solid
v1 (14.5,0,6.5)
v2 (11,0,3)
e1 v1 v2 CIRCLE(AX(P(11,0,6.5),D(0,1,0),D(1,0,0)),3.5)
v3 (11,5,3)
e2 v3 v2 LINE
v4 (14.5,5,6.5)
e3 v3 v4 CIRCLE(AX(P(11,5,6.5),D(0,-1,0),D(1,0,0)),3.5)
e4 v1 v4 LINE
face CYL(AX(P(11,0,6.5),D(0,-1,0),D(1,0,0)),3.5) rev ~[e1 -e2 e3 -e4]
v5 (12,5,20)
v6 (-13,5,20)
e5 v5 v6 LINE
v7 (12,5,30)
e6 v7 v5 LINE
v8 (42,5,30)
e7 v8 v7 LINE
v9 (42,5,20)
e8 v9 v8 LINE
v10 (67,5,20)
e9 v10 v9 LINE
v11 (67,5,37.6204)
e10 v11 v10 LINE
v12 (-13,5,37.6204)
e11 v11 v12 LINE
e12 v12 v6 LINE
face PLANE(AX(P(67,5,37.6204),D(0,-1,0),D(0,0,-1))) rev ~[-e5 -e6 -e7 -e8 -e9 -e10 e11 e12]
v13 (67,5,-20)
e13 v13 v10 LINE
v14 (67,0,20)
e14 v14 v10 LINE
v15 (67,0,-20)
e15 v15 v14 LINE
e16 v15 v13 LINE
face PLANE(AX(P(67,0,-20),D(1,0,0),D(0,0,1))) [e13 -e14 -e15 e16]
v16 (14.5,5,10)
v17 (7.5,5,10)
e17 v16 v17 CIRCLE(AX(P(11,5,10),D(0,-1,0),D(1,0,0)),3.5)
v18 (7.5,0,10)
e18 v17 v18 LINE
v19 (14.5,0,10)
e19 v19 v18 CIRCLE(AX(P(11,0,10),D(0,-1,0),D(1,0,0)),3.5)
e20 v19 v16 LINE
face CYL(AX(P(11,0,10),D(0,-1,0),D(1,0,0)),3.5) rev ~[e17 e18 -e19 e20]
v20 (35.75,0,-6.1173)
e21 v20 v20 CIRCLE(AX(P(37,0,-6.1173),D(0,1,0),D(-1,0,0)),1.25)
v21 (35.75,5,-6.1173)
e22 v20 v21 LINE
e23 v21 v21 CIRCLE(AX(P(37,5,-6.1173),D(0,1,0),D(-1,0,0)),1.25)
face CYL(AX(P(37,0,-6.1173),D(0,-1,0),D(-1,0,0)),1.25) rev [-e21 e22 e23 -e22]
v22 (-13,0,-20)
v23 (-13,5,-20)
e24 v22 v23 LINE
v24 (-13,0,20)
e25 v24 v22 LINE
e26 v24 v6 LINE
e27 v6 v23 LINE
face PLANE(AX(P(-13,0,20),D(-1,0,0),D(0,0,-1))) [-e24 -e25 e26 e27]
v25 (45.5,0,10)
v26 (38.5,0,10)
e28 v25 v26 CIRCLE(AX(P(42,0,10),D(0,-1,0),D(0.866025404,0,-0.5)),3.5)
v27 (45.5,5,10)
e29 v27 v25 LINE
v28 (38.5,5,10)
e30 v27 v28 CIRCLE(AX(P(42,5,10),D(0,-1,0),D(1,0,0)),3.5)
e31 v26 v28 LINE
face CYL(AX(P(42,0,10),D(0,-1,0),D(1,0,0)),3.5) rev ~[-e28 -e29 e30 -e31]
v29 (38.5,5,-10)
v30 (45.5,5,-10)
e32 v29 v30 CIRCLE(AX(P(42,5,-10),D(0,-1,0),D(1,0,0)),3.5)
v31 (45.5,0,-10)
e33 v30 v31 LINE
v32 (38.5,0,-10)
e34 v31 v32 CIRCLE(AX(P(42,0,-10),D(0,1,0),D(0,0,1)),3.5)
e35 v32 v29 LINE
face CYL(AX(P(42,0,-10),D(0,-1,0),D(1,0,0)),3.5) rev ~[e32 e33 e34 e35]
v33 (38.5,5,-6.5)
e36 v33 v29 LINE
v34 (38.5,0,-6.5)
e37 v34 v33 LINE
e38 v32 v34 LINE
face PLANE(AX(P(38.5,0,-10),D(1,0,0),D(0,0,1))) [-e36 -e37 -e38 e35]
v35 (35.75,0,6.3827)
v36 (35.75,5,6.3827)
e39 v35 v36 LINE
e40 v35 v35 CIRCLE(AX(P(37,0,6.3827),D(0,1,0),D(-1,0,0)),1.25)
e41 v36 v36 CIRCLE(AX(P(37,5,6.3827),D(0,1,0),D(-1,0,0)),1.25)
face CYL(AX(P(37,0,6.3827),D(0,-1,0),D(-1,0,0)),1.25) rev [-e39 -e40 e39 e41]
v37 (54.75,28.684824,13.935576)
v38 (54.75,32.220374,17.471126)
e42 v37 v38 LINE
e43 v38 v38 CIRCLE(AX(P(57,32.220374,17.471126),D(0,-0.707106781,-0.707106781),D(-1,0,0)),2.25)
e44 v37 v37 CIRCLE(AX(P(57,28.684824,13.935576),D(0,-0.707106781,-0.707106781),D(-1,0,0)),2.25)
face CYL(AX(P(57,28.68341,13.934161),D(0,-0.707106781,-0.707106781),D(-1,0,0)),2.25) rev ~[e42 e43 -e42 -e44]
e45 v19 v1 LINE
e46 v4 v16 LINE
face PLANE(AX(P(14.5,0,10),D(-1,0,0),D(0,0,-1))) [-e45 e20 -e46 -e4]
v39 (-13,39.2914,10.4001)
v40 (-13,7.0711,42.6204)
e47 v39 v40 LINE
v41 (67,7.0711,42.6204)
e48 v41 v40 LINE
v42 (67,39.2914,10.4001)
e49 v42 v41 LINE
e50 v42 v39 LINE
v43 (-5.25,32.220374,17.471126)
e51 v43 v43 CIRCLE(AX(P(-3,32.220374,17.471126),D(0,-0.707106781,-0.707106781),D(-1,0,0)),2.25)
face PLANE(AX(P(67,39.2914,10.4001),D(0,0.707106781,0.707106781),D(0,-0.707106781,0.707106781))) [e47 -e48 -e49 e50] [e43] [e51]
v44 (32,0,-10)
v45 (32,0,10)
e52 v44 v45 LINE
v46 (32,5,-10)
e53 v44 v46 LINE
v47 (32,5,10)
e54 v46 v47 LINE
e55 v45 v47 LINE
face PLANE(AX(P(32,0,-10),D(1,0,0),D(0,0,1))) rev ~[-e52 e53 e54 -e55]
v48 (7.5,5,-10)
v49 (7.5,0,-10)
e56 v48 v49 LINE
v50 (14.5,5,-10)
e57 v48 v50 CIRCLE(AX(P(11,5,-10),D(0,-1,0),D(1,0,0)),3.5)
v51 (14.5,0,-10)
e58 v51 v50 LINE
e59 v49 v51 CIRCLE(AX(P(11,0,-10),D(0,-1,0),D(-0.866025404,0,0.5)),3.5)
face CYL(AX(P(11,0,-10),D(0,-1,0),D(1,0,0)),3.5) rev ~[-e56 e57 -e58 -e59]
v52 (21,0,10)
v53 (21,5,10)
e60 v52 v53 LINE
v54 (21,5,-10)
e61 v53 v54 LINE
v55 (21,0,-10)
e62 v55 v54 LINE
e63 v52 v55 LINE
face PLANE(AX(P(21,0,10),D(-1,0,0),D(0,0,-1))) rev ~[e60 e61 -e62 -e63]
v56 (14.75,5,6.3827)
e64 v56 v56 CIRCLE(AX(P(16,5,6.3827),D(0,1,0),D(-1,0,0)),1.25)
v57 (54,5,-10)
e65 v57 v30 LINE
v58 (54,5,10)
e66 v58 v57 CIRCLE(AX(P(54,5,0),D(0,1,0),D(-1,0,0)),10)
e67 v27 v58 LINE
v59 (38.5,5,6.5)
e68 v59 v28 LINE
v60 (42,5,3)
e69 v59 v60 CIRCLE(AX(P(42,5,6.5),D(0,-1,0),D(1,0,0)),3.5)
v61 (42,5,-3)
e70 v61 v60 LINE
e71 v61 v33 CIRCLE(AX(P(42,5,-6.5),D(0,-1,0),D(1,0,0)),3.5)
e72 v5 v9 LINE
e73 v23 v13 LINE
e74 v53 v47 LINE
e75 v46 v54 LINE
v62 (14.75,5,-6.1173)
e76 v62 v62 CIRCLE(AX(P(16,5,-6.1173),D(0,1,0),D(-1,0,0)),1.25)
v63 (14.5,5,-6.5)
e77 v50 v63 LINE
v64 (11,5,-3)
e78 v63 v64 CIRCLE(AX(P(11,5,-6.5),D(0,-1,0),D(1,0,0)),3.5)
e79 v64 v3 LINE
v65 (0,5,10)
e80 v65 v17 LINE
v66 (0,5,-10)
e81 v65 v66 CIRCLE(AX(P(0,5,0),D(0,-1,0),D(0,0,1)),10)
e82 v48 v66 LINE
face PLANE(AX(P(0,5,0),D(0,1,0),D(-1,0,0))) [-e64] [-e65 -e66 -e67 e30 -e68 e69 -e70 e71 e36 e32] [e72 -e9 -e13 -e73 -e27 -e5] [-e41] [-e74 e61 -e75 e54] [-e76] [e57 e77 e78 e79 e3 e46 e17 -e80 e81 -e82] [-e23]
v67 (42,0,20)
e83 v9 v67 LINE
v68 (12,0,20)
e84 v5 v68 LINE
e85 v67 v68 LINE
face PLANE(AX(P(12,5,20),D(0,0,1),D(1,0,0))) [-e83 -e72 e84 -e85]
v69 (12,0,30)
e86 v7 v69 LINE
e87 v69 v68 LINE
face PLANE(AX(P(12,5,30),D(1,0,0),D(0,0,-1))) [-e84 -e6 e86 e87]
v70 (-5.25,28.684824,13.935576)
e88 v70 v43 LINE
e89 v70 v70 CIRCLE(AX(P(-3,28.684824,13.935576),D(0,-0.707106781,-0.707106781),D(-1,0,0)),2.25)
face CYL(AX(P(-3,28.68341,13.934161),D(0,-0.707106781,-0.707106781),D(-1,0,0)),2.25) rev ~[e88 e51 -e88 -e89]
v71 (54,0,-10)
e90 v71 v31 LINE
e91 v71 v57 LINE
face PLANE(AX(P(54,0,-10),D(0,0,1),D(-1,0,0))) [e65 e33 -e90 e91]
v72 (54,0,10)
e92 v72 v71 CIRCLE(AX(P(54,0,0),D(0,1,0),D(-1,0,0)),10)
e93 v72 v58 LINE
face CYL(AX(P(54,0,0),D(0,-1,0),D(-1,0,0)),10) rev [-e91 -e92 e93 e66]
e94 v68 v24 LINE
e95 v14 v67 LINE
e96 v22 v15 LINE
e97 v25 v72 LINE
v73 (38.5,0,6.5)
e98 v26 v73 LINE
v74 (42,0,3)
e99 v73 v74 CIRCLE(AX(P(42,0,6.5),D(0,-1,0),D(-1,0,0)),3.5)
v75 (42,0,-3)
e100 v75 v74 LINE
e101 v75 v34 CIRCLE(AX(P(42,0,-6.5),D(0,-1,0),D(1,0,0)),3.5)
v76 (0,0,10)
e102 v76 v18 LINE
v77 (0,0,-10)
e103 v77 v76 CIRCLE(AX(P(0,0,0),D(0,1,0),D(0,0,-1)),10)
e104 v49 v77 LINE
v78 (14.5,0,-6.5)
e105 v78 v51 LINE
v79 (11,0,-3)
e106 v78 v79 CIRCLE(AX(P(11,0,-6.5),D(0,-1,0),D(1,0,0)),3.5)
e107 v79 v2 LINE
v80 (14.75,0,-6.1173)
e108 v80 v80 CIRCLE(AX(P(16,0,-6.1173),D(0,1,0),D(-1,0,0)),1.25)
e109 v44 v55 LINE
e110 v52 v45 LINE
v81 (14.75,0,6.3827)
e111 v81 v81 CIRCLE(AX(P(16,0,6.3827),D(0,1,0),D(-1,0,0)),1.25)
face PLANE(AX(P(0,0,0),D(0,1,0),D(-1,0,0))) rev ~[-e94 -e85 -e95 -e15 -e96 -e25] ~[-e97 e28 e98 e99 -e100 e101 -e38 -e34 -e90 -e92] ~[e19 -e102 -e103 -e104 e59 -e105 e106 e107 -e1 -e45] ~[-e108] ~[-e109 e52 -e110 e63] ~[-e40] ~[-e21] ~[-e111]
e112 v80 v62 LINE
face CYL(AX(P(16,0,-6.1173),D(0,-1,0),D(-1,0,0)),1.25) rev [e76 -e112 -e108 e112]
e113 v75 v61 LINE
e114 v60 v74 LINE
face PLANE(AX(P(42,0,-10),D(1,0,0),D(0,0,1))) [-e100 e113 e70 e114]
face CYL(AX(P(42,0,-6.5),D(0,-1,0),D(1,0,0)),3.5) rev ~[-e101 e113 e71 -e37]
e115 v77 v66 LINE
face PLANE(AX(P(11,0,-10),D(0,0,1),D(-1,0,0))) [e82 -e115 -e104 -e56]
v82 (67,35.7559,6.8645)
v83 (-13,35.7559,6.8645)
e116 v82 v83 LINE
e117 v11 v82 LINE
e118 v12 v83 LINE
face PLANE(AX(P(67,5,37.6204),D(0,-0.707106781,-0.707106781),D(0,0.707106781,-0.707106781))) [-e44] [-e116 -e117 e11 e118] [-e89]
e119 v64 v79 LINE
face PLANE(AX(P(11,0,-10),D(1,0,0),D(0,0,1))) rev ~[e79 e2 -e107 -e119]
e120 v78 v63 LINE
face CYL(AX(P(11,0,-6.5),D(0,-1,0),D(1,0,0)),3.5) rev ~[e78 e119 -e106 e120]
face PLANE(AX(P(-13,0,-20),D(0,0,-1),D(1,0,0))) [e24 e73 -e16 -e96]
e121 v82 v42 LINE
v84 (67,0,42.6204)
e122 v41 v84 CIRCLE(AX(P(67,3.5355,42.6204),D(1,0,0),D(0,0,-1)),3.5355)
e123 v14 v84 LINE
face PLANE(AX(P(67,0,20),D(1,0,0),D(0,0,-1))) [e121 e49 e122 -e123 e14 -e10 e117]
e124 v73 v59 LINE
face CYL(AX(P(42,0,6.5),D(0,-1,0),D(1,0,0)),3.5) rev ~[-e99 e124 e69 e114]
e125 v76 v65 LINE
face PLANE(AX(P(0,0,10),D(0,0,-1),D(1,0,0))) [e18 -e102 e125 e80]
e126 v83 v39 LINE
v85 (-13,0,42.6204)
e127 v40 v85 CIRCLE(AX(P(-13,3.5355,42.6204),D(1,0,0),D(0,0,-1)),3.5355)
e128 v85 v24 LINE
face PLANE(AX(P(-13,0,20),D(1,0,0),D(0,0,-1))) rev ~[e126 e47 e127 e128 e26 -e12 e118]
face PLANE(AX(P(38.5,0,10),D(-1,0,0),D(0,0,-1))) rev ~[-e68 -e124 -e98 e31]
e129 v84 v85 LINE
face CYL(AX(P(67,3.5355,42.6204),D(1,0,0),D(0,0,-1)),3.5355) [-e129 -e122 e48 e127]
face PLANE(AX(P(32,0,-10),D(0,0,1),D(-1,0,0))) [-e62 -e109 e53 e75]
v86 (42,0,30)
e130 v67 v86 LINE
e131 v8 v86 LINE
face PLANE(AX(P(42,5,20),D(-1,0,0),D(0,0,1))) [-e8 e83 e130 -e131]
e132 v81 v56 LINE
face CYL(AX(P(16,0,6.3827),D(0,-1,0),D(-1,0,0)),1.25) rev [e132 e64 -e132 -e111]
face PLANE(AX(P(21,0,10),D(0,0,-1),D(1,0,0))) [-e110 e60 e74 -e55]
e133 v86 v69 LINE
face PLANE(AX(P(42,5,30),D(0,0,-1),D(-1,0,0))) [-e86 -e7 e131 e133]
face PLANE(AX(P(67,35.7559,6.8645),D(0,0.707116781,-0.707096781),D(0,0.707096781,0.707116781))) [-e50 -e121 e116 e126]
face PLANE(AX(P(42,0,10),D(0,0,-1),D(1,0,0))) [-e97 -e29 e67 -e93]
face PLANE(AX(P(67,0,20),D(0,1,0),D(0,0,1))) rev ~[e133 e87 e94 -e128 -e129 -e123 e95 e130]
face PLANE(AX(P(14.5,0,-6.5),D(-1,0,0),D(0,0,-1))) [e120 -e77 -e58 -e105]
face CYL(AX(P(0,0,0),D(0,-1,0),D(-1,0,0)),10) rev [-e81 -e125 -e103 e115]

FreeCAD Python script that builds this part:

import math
import FreeCAD as App
import Part
import Sketcher
from FreeCAD import Vector
Q = App.Units.Quantity

doc = App.newDocument("Part")
body = doc.addObject("PartDesign::Body", "Body")

# Sketch on XZ plane
sketch1 = body.newObject("Sketcher::SketchObject", "Sketch")
sketch1.AttachmentSupport = (doc.getObject("XZ_Plane"), [""])
sketch1.MapMode = "FlatFace"
sketch1.addGeometry([
    Part.LineSegment(Vector(67, -20, 0), Vector(-13, -20, 0)),  # 0
    Part.LineSegment(Vector(-13, -20, 0), Vector(-13, 20, 0)),  # 1
    Part.LineSegment(Vector(-13, 20, 0), Vector(67, 20, 0)),  # 2
    Part.LineSegment(Vector(67, 20, 0), Vector(67, -20, 0)),  # 3
    Part.LineSegment(Vector(11, -10, 0), Vector(11, 10, 0)),  # 4
    Part.LineSegment(Vector(11, 10, 0), Vector(0, 10, 0)),  # 5
    Part.ArcOfCircle(Part.Circle(Vector(0, 0, 0), Vector(0, 0, 1), 10), math.radians(90), math.radians(270)),  # 6
    Part.LineSegment(Vector(0, -10, 0), Vector(11, -10, 0)),  # 7
    Part.LineSegment(Vector(21, 10, 0), Vector(21, -10, 0)),  # 8
    Part.LineSegment(Vector(21, -10, 0), Vector(32, -10, 0)),  # 9
    Part.LineSegment(Vector(32, -10, 0), Vector(32, 10, 0)),  # 10
    Part.LineSegment(Vector(32, 10, 0), Vector(21, 10, 0)),  # 11
    Part.Circle(Vector(16, -6.1, 0), Vector(0, 0, 1), 1.2),  # 12
    Part.Circle(Vector(16, 6.4, 0), Vector(0, 0, 1), 1.2),  # 13
    Part.LineSegment(Vector(54, 10, 0), Vector(42, 10, 0)),  # 14
    Part.LineSegment(Vector(42, 10, 0), Vector(42, -10, 0)),  # 15
    Part.LineSegment(Vector(42, -10, 0), Vector(54, -10, 0)),  # 16
    Part.ArcOfCircle(Part.Circle(Vector(54, 0, 0), Vector(0, 0, 1), 10), math.radians(-90), math.radians(90)),  # 17
    Part.Circle(Vector(37, -6.1, 0), Vector(0, 0, 1), 1.2),  # 18
    Part.Circle(Vector(37, 6.4, 0), Vector(0, 0, 1), 1.2),  # 19
], False)
sketch1.addConstraint([
    Sketcher.Constraint("Coincident", 0, 2, 1, 1),
    Sketcher.Constraint("Coincident", 1, 2, 2, 1),
    Sketcher.Constraint("Coincident", 2, 2, 3, 1),
    Sketcher.Constraint("Coincident", 3, 2, 0, 1),
    Sketcher.Constraint("Coincident", 4, 2, 5, 1),
    Sketcher.Constraint("Tangent", 5, 2, 6, 1),
    Sketcher.Constraint("Tangent", 6, 2, 7, 1),
    Sketcher.Constraint("Coincident", 7, 2, 4, 1),
    Sketcher.Constraint("Coincident", 8, 2, 9, 1),
    Sketcher.Constraint("Coincident", 9, 2, 10, 1),
    Sketcher.Constraint("Coincident", 10, 2, 11, 1),
    Sketcher.Constraint("Coincident", 11, 2, 8, 1),
    Sketcher.Constraint("Coincident", 14, 2, 15, 1),
    Sketcher.Constraint("Coincident", 15, 2, 16, 1),
    Sketcher.Constraint("Tangent", 16, 2, 17, 1),
    Sketcher.Constraint("Tangent", 17, 2, 14, 1),
    Sketcher.Constraint("Horizontal", 0),
    Sketcher.Constraint("Vertical", 1),
    Sketcher.Constraint("Horizontal", 2),
    Sketcher.Constraint("Vertical", 3),
    Sketcher.Constraint("Vertical", 4),
    Sketcher.Constraint("Horizontal", 5),
    Sketcher.Constraint("Horizontal", 7),
    Sketcher.Constraint("Vertical", 8),
    Sketcher.Constraint("Horizontal", 9),
    Sketcher.Constraint("Vertical", 10),
    Sketcher.Constraint("Horizontal", 11),
    Sketcher.Constraint("Horizontal", 14),
    Sketcher.Constraint("Vertical", 15),
    Sketcher.Constraint("Horizontal", 16),
    Sketcher.Constraint("Coincident", 6, 3, -1, 1),
    Sketcher.Constraint("Equal", 12, 13),
    Sketcher.Constraint("Equal", 6, 17),
    Sketcher.Constraint("Equal", 13, 18),
    Sketcher.Constraint("Equal", 18, 19),
    Sketcher.Constraint("PointOnObject", 17, 3, -1),
    Sketcher.Constraint("Horizontal", 12, 3, 18, 3),
    Sketcher.Constraint("Horizontal", 13, 3, 19, 3),
    Sketcher.Constraint("Horizontal", 7, 2, 8, 2),
    Sketcher.Constraint("Horizontal", 5, 2, 10, 2),
    Sketcher.Constraint("Vertical", 12, 3, 13, 3),
    Sketcher.Constraint("Vertical", 18, 3, 19, 3),
    Sketcher.Constraint("Equal", 7, 9),
    Sketcher.Constraint("Radius", 6, 10.0),
    Sketcher.Constraint("Diameter", 12, 2.5),
    Sketcher.Constraint("DistanceX", 0, 2, 0, 1, 80.0),
    Sketcher.Constraint("DistanceX", 5, 2, 5, 1, 11.0),
    Sketcher.Constraint("DistanceY", 1, 1, 1, 2, 40.0),
    Sketcher.Constraint("DistanceX", -1, 1, 17, 3, 54.0),
    Sketcher.Constraint("DistanceX", 0, 2, -1, 1, 13.0),
    Sketcher.Constraint("DistanceY", 0, 2, -1, 1, 20.0),
    Sketcher.Constraint("DistanceX", -1, 1, 8, 2, 21.0),
    Sketcher.Constraint("DistanceX", 12, 3, 18, 3, 21.0),
    Sketcher.Constraint("DistanceX", 4, 2, 13, 3, 5.0),
    Sketcher.Constraint("DistanceX", 19, 3, 14, 2, 5.0),
    Sketcher.Constraint("DistanceY", 12, 3, 13, 3, 12.5),
    Sketcher.Constraint("DistanceY", 12, 3, -1, 1, 6.1173),
])
pad1 = body.newObject("PartDesign::Pad", "Pad")
pad1.Profile = sketch1
pad1.Length = 5
pad1.Reversed = True

# Sketch on YZ plane
sketch2 = body.newObject("Sketcher::SketchObject", "Sketch001")
sketch2.AttachmentSupport = (doc.getObject("YZ_Plane"), [""])
sketch2.MapMode = "FlatFace"
sketch2.AttachmentOffset = App.Placement(Vector(0, 0, 67), App.Rotation())
sketch2.addGeometry([
    Part.LineSegment(Vector(0, 20, 0), Vector(5, 20, 0)),  # 0
    Part.LineSegment(Vector(5, 20, 0), Vector(5, 37.6, 0)),  # 1
    Part.LineSegment(Vector(5, 37.6, 0), Vector(35.8, 6.9, 0)),  # 2
    Part.LineSegment(Vector(35.8, 6.9, 0), Vector(39.3, 10.4, 0)),  # 3
    Part.LineSegment(Vector(39.3, 10.4, 0), Vector(7.1, 42.6, 0)),  # 4
    Part.ArcOfCircle(Part.Circle(Vector(3.5, 42.6, 0), Vector(0, 0, 1), 3.5), math.radians(0), math.radians(180)),  # 5
    Part.LineSegment(Vector(0, 42.6, 0), Vector(0, 20, 0)),  # 6
], False)
sketch2.addConstraint([
    Sketcher.Constraint("Coincident", 0, 2, 1, 1),
    Sketcher.Constraint("Coincident", 1, 2, 2, 1),
    Sketcher.Constraint("Coincident", 2, 2, 3, 1),
    Sketcher.Constraint("Coincident", 3, 2, 4, 1),
    Sketcher.Constraint("Coincident", 4, 2, 5, 1),
    Sketcher.Constraint("Tangent", 5, 2, 6, 1),
    Sketcher.Constraint("Coincident", 6, 2, 0, 1),
    Sketcher.Constraint("Horizontal", 0),
    Sketcher.Constraint("Vertical", 1),
    Sketcher.Constraint("Vertical", 6),
    Sketcher.Constraint("PointOnObject", 5, 2, -2),
    Sketcher.Constraint("Perpendicular", 2, 3),
    Sketcher.Constraint("Perpendicular", 3, 4),
    Sketcher.Constraint("Horizontal", 5, 3, 4, 2),
    Sketcher.Constraint("DistanceX", 0, 1, 0, 2, 5.0),
    Sketcher.Constraint("Angle", 2, Q("-45 deg")),
    Sketcher.Constraint("Distance", 3, 5.0),
    Sketcher.Constraint("DistanceY", 1, 2, 5, 3, 5.0),
    Sketcher.Constraint("DistanceY", -1, 1, 0, 2, 20.0),
    Sketcher.Constraint("DistanceY", -1, 1, 3, 2, 10.4),
    Sketcher.Constraint("DistanceY", 1, 1, 1, 2, 17.6204),
])
pad2 = body.newObject("PartDesign::Pad", "Pad001")
pad2.Profile = sketch2
pad2.Length = 80
pad2.Reversed = True

# Sketch on XZ plane
sketch3 = body.newObject("Sketcher::SketchObject", "Sketch002")
sketch3.AttachmentSupport = (doc.getObject("XZ_Plane"), [""])
sketch3.MapMode = "FlatFace"
sketch3.AttachmentOffset = App.Placement(Vector(0, 0, -5), App.Rotation())
sketch3.addGeometry([
    Part.LineSegment(Vector(42, 20, 0), Vector(12, 20, 0)),
    Part.LineSegment(Vector(12, 20, 0), Vector(12, 30, 0)),
    Part.LineSegment(Vector(12, 30, 0), Vector(42, 30, 0)),
    Part.LineSegment(Vector(42, 30, 0), Vector(42, 20, 0)),
], False)
sketch3.addConstraint([
    Sketcher.Constraint("Coincident", 0, 2, 1, 1),
    Sketcher.Constraint("Coincident", 1, 2, 2, 1),
    Sketcher.Constraint("Coincident", 2, 2, 3, 1),
    Sketcher.Constraint("Coincident", 3, 2, 0, 1),
    Sketcher.Constraint("Horizontal", 0),
    Sketcher.Constraint("Vertical", 1),
    Sketcher.Constraint("Horizontal", 2),
    Sketcher.Constraint("Vertical", 3),
    Sketcher.Constraint("DistanceX", 0, 2, 0, 1, 30.0),
    Sketcher.Constraint("DistanceY", 1, 1, 1, 2, 10.0),
    Sketcher.Constraint("DistanceY", -1, 1, 1, 2, 30.0),
    Sketcher.Constraint("DistanceX", -1, 1, 0, 2, 12.0),
])
pocket1 = body.newObject("PartDesign::Pocket", "Pocket")
pocket1.Profile = sketch3
pocket1.Length = 80
pocket1.Reversed = True

# Sketch on an angled plane
sketch4 = body.newObject("Sketcher::SketchObject", "Sketch003")
sketch4.Placement = App.Placement(Vector(67, 5, 37.6204), App.Rotation(Vector(-1, 0, 0), Vector(0, 0.707106781, -0.707106781), Vector(0, -0.707106781, -0.707106781), "ZXY"))
sketch4.addGeometry([
    Part.Circle(Vector(70, 33.5, 0), Vector(0, 0, 1), 2.2),
    Part.Circle(Vector(10, 33.5, 0), Vector(0, 0, 1), 2.2),
], False)
sketch4.addConstraint([
    Sketcher.Constraint("Equal", 0, 1),
    Sketcher.Constraint("Horizontal", 0, 3, 1, 3),
    Sketcher.Constraint("Diameter", 0, 4.5),
    Sketcher.Constraint("DistanceX", -1, 1, 1, 3, 10.0),
    Sketcher.Constraint("DistanceX", -1, 1, 0, 3, 70.0),
    Sketcher.Constraint("DistanceY", -1, 1, 0, 3, 33.4954),
])
pocket2 = body.newObject("PartDesign::Pocket", "Pocket001")
pocket2.Profile = sketch4
pocket2.Length = 80

# Sketch on XZ plane
sketch5 = body.newObject("Sketcher::SketchObject", "Sketch004")
sketch5.AttachmentSupport = (doc.getObject("XZ_Plane"), [""])
sketch5.MapMode = "FlatFace"
sketch5.addGeometry([
    Part.LineSegment(Vector(38.5, 10, 0), Vector(38.5, 6.5, 0)),  # 0
    Part.ArcOfCircle(Part.Circle(Vector(42, 6.5, 0), Vector(0, 0, 1), 3.5), math.radians(180), math.radians(390)),  # 1
    Part.ArcOfCircle(Part.Circle(Vector(42, 10, 0), Vector(0, 0, 1), 3.5), math.radians(-30), math.radians(180)),  # 2
    Part.LineSegment(Vector(42, -6.5, 0), Vector(42, -3, 0)),  # 3
    Part.ArcOfCircle(Part.Circle(Vector(42, -6.5, 0), Vector(0, 0, 1), 3.5), math.radians(90), math.radians(180)),  # 4
    Part.LineSegment(Vector(38.5, -6.5, 0), Vector(38.5, -10, 0)),  # 5
    Part.ArcOfCircle(Part.Circle(Vector(42, -10, 0), Vector(0, 0, 1), 3.5), math.radians(180), math.radians(450)),  # 6
    Part.ArcOfCircle(Part.Circle(Vector(11, -10, 0), Vector(0, 0, 1), 3.5), math.radians(150), math.radians(360)),  # 7
    Part.LineSegment(Vector(14.5, -10, 0), Vector(14.5, -6.5, 0)),  # 8
    Part.ArcOfCircle(Part.Circle(Vector(11, -6.5, 0), Vector(0, 0, 1), 3.5), math.radians(0), math.radians(210)),  # 9
    Part.ArcOfCircle(Part.Circle(Vector(11, 6.5, 0), Vector(0, 0, 1), 3.5), math.radians(150), math.radians(360)),  # 10
    Part.LineSegment(Vector(14.5, 6.5, 0), Vector(14.5, 10, 0)),  # 11
    Part.ArcOfCircle(Part.Circle(Vector(11, 10, 0), Vector(0, 0, 1), 3.5), math.radians(0), math.radians(210)),  # 12
], False)
sketch5.addConstraint([
    Sketcher.Constraint("Tangent", 0, 2, 1, 1),
    Sketcher.Constraint("Coincident", 1, 2, 2, 1),
    Sketcher.Constraint("Tangent", 2, 2, 0, 1),
    Sketcher.Constraint("Coincident", 3, 2, 4, 1),
    Sketcher.Constraint("Tangent", 4, 2, 5, 1),
    Sketcher.Constraint("Tangent", 5, 2, 6, 1),
    Sketcher.Constraint("Coincident", 6, 2, 3, 1),
    Sketcher.Constraint("Tangent", 7, 2, 8, 1),
    Sketcher.Constraint("Tangent", 8, 2, 9, 1),
    Sketcher.Constraint("Coincident", 9, 2, 7, 1),
    Sketcher.Constraint("Tangent", 10, 2, 11, 1),
    Sketcher.Constraint("Tangent", 11, 2, 12, 1),
    Sketcher.Constraint("Coincident", 12, 2, 10, 1),
    Sketcher.Constraint("Vertical", 0),
    Sketcher.Constraint("Vertical", 3),
    Sketcher.Constraint("Vertical", 5),
    Sketcher.Constraint("Vertical", 8),
    Sketcher.Constraint("Vertical", 11),
    Sketcher.Constraint("Coincident", 6, 2, 4, 3),
    Sketcher.Constraint("Equal", 1, 2),
    Sketcher.Constraint("Equal", 2, 4),
    Sketcher.Constraint("Equal", 4, 6),
    Sketcher.Constraint("Equal", 6, 7),
    Sketcher.Constraint("Equal", 7, 9),
    Sketcher.Constraint("Equal", 9, 10),
    Sketcher.Constraint("Equal", 10, 12),
    Sketcher.Constraint("Symmetric", 1, 3, 4, 3, -1),
    Sketcher.Constraint("Symmetric", 9, 3, 10, 3, -1),
    Sketcher.Constraint("Horizontal", 6, 3, 7, 3),
    Sketcher.Constraint("Horizontal", 4, 3, 9, 3),
    Sketcher.Constraint("Horizontal", 2, 3, 12, 3),
    Sketcher.Constraint("Vertical", 9, 2, 12, 2),
    Sketcher.Constraint("Radius", 1, 3.5),
    Sketcher.Constraint("DistanceY", 6, 3, 2, 3, 20.0),
    Sketcher.Constraint("DistanceX", -1, 1, 1, 3, 42.0),
    Sketcher.Constraint("DistanceX", -1, 1, 7, 3, 11.0),
])
pocket3 = body.newObject("PartDesign::Pocket", "Pocket002")
pocket3.Profile = sketch5
pocket3.Length = 6

doc.recompute()
